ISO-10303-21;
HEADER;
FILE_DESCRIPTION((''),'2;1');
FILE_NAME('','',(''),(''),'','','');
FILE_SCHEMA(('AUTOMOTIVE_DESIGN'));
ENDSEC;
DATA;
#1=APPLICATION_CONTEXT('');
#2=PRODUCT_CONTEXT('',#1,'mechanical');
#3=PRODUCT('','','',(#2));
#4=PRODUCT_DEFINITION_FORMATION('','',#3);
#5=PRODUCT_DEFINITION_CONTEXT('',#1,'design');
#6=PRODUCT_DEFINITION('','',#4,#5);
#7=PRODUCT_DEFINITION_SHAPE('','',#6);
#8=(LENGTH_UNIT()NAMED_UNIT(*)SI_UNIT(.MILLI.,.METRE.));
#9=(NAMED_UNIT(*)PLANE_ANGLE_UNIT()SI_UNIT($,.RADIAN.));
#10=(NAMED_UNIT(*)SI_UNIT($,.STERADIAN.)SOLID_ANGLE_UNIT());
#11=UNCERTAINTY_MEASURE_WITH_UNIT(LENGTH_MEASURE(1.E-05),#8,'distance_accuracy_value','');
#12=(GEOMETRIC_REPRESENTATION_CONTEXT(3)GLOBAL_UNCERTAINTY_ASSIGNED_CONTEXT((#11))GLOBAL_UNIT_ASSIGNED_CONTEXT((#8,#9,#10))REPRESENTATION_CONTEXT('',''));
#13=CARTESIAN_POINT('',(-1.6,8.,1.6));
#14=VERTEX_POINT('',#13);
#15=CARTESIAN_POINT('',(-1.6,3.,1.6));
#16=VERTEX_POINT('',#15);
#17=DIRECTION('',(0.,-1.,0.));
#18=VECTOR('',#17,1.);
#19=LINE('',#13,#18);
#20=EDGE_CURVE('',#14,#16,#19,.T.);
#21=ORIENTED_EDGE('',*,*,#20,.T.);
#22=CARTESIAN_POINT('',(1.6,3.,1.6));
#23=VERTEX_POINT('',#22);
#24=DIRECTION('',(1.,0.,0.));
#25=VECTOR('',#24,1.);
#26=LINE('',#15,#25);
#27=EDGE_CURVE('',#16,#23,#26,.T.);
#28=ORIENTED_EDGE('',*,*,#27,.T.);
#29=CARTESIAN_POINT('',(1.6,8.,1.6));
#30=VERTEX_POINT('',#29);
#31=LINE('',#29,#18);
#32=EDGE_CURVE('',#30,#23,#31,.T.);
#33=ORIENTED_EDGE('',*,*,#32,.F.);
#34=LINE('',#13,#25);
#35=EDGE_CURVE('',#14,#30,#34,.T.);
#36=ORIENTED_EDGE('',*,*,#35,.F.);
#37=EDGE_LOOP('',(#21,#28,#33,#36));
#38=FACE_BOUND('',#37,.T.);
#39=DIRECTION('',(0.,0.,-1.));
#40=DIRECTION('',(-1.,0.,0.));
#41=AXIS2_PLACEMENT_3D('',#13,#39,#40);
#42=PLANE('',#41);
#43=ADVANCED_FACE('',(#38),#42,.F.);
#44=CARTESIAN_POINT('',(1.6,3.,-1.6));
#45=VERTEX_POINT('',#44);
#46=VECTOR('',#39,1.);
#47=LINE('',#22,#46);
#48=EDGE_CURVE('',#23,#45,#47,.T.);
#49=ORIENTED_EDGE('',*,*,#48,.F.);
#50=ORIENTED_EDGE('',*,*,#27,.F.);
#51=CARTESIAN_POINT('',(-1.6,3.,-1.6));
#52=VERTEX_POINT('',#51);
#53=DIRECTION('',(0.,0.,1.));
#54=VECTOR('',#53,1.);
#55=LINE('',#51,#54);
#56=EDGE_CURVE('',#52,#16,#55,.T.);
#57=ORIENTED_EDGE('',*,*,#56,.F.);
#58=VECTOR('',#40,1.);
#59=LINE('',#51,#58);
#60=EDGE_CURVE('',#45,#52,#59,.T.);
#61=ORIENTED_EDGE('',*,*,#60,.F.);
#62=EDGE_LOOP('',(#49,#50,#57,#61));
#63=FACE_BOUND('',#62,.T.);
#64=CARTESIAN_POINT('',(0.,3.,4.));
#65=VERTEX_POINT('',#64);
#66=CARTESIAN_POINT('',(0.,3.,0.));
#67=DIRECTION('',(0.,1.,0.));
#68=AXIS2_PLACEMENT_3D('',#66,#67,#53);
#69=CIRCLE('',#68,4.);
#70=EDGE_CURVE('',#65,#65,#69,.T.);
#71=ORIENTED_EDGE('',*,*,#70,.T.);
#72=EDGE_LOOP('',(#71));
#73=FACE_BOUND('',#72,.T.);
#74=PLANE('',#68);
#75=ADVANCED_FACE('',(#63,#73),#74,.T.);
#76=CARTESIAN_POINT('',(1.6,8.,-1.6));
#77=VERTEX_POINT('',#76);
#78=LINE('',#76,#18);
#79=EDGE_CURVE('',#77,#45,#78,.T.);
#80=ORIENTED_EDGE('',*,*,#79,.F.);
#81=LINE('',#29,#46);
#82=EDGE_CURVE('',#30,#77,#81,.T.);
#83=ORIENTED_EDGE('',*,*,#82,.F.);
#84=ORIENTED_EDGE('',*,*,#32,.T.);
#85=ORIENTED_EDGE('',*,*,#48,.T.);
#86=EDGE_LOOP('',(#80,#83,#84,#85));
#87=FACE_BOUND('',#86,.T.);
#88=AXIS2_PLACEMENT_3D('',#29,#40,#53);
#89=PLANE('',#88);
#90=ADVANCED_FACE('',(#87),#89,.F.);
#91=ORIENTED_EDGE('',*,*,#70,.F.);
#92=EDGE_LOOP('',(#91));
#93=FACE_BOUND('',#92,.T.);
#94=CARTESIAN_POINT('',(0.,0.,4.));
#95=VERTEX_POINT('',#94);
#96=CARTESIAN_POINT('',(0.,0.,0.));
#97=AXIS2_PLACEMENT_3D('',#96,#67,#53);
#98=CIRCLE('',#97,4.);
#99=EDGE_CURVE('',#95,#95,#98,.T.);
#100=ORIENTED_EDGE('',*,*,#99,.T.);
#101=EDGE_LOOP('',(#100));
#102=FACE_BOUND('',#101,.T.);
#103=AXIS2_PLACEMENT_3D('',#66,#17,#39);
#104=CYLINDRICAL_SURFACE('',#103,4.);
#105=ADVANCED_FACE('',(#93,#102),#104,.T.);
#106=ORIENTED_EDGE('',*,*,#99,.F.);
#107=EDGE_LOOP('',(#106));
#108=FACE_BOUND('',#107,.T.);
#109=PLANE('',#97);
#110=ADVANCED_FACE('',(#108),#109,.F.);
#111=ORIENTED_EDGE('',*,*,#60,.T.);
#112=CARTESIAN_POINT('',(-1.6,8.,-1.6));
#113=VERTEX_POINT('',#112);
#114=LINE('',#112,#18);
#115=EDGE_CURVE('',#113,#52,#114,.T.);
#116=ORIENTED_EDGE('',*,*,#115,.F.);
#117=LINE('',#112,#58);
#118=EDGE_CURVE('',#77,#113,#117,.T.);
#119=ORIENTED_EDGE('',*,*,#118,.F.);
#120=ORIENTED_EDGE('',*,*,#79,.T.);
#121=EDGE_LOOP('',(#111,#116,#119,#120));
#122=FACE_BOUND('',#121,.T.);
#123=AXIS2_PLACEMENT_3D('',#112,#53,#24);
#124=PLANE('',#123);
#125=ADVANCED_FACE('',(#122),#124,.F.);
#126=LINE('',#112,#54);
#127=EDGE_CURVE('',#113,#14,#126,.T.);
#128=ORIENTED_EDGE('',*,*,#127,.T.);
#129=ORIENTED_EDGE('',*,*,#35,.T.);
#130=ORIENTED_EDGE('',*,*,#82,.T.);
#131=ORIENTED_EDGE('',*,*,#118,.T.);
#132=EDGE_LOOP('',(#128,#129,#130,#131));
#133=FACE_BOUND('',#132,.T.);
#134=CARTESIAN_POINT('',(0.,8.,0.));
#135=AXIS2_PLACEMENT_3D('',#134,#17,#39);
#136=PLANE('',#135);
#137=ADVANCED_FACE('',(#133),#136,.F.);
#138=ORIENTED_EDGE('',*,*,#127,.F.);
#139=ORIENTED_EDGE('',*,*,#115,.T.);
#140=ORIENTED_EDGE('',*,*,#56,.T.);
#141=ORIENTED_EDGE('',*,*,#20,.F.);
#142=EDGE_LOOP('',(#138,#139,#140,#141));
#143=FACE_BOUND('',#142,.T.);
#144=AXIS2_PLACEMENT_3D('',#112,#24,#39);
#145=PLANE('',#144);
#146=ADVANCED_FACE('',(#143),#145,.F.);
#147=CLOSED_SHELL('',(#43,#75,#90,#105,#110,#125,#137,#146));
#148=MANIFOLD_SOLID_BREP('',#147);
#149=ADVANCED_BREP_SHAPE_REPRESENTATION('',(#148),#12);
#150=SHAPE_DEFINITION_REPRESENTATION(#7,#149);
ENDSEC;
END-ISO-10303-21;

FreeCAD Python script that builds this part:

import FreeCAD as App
import Part
import Sketcher


def add_polygon(sketch, points):
    """Adds a closed chain of lines whose ends are joined by coincident constraints."""
    first, n = sketch.GeometryCount, len(points)
    for a, b in zip(points, points[1:] + points[:1]):
        sketch.addGeometry(Part.LineSegment(App.Vector(*a, 0), App.Vector(*b, 0)), False)
    for i in range(n):
        sketch.addConstraint(Sketcher.Constraint("Coincident", first + i, 2, first + (i + 1) % n, 1))

doc = App.newDocument("Part")
body = doc.addObject("PartDesign::Body", "Body")

sketch1 = body.newObject("Sketcher::SketchObject", "Sketch")
sketch1.AttachmentSupport = (doc.getObject("XZ_Plane"), [""])
sketch1.MapMode = "FlatFace"
sketch1.addGeometry(Part.Circle(App.Vector(0, 0, 0), App.Vector(0, 0, 1), 4), False)
sketch1.addConstraint([
    Sketcher.Constraint("Coincident", 0, 3, -1, 1),
    Sketcher.Constraint("Diameter", 0, 8.0),
])
pad1 = body.newObject("PartDesign::Pad", "Pad")
pad1.Profile = sketch1
pad1.Length = 3
pad1.Reversed = True

sketch2 = body.newObject("Sketcher::SketchObject", "Sketch001")
sketch2.AttachmentSupport = (doc.getObject("XZ_Plane"), [""])
sketch2.MapMode = "FlatFace"
sketch2.AttachmentOffset = App.Placement(App.Vector(0, 0, -3), App.Rotation())
add_polygon(sketch2, [(-1.6, -1.6), (-1.6, 1.6), (1.6, 1.6), (1.6, -1.6)])
sketch2.addConstraint([
    Sketcher.Constraint("Vertical", 0),
    Sketcher.Constraint("Horizontal", 1),
    Sketcher.Constraint("Vertical", 2),
    Sketcher.Constraint("Horizontal", 3),
    Sketcher.Constraint("Symmetric", 0, 2, 2, 2, -1, 1),
    Sketcher.Constraint("Equal", 3, 0),
    Sketcher.Constraint("DistanceX", 1, 1, 1, 2, 3.2),
])
pad2 = body.newObject("PartDesign::Pad", "Pad001")
pad2.Profile = sketch2
pad2.Length = 5
pad2.Reversed = True

doc.recompute()
